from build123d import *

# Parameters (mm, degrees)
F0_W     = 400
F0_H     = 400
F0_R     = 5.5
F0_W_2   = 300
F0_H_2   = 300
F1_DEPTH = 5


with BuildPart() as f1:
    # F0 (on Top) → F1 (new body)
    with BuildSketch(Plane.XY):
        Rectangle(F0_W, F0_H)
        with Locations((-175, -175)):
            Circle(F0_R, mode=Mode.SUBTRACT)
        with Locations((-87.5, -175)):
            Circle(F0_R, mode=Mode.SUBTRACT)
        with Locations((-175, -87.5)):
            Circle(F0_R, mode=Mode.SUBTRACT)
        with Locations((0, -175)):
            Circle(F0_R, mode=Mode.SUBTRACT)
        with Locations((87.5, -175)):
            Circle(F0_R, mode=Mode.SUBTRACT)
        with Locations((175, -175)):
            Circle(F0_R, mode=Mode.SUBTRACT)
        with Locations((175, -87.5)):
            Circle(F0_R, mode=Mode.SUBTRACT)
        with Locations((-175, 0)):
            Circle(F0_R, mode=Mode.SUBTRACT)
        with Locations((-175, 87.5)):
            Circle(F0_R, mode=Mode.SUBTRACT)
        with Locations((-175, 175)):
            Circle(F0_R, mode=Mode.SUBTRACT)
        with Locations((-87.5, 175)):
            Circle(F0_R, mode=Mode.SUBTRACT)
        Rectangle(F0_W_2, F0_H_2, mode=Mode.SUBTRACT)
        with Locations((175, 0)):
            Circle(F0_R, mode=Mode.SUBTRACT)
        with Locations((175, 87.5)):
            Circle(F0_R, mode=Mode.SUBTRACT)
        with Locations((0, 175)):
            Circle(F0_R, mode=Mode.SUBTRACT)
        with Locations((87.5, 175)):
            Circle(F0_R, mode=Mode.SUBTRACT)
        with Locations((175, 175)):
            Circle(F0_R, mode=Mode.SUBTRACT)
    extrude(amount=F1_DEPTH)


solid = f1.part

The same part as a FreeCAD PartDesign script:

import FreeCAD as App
import Part
import Sketcher
from FreeCAD import Vector
Q = App.Units.Quantity

doc = App.newDocument("Part")
body = doc.addObject("PartDesign::Body", "Body")

# Sketch on XY plane
sketch1 = body.newObject("Sketcher::SketchObject", "Sketch")
sketch1.AttachmentSupport = (doc.getObject("XY_Plane"), [""])
sketch1.MapMode = "FlatFace"
sketch1.addGeometry(Part.LineSegment(Vector(-200, 200, 0), Vector(-200, -200, 0)), False)
sketch1.addGeometry(Part.LineSegment(Vector(-200, -200, 0), Vector(200, -200, 0)), False)
sketch1.addGeometry(Part.LineSegment(Vector(200, -200, 0), Vector(200, 200, 0)), False)
sketch1.addGeometry(Part.LineSegment(Vector(200, 200, 0), Vector(-200, 200, 0)), False)
sketch1.addGeometry(Part.Circle(Vector(-175, -175, 0), Vector(0, 0, 1), 5.5), False)
sketch1.addGeometry(Part.Circle(Vector(-87.5, -175, 0), Vector(0, 0, 1), 5.5), False)
sketch1.addGeometry(Part.Circle(Vector(-175, -87.5, 0), Vector(0, 0, 1), 5.5), False)
sketch1.addGeometry(Part.Circle(Vector(0, -175, 0), Vector(0, 0, 1), 5.5), False)
sketch1.addGeometry(Part.Circle(Vector(87.5, -175, 0), Vector(0, 0, 1), 5.5), False)
sketch1.addGeometry(Part.Circle(Vector(175, -175, 0), Vector(0, 0, 1), 5.5), False)
sketch1.addGeometry(Part.Circle(Vector(175, -87.5, 0), Vector(0, 0, 1), 5.5), False)
sketch1.addGeometry(Part.Circle(Vector(-175, 0, 0), Vector(0, 0, 1), 5.5), False)
sketch1.addGeometry(Part.Circle(Vector(-175, 87.5, 0), Vector(0, 0, 1), 5.5), False)
sketch1.addGeometry(Part.Circle(Vector(-175, 175, 0), Vector(0, 0, 1), 5.5), False)
sketch1.addGeometry(Part.Circle(Vector(-87.5, 175, 0), Vector(0, 0, 1), 5.5), False)
sketch1.addGeometry(Part.LineSegment(Vector(150, -150, 0), Vector(-150, -150, 0)), False)
sketch1.addGeometry(Part.LineSegment(Vector(-150, -150, 0), Vector(-150, 150, 0)), False)
sketch1.addGeometry(Part.LineSegment(Vector(-150, 150, 0), Vector(150, 150, 0)), False)
sketch1.addGeometry(Part.LineSegment(Vector(150, 150, 0), Vector(150, -150, 0)), False)
sketch1.addGeometry(Part.Circle(Vector(175, 0, 0), Vector(0, 0, 1), 5.5), False)
sketch1.addGeometry(Part.Circle(Vector(175, 87.5, 0), Vector(0, 0, 1), 5.5), False)
sketch1.addGeometry(Part.Circle(Vector(0, 175, 0), Vector(0, 0, 1), 5.5), False)
sketch1.addGeometry(Part.Circle(Vector(87.5, 175, 0), Vector(0, 0, 1), 5.5), False)
sketch1.addGeometry(Part.Circle(Vector(175, 175, 0), Vector(0, 0, 1), 5.5), False)
sketch1.addConstraint(Sketcher.Constraint("Coincident", 0, 2, 1, 1))
sketch1.addConstraint(Sketcher.Constraint("Coincident", 1, 2, 2, 1))
sketch1.addConstraint(Sketcher.Constraint("Coincident", 2, 2, 3, 1))
sketch1.addConstraint(Sketcher.Constraint("Coincident", 3, 2, 0, 1))
sketch1.addConstraint(Sketcher.Constraint("Coincident", 15, 2, 16, 1))
sketch1.addConstraint(Sketcher.Constraint("Coincident", 16, 2, 17, 1))
sketch1.addConstraint(Sketcher.Constraint("Coincident", 17, 2, 18, 1))
sketch1.addConstraint(Sketcher.Constraint("Coincident", 18, 2, 15, 1))
sketch1.addConstraint(Sketcher.Constraint("Vertical", 0))
sketch1.addConstraint(Sketcher.Constraint("Horizontal", 1))
sketch1.addConstraint(Sketcher.Constraint("Vertical", 2))
sketch1.addConstraint(Sketcher.Constraint("Horizontal", 3))
sketch1.addConstraint(Sketcher.Constraint("Horizontal", 15))
sketch1.addConstraint(Sketcher.Constraint("Vertical", 16))
sketch1.addConstraint(Sketcher.Constraint("Horizontal", 17))
sketch1.addConstraint(Sketcher.Constraint("Vertical", 18))
sketch1.addConstraint(Sketcher.Constraint("Equal", 4, 5))
sketch1.addConstraint(Sketcher.Constraint("Equal", 5, 6))
sketch1.addConstraint(Sketcher.Constraint("Equal", 6, 7))
sketch1.addConstraint(Sketcher.Constraint("Equal", 7, 8))
sketch1.addConstraint(Sketcher.Constraint("Equal", 8, 9))
sketch1.addConstraint(Sketcher.Constraint("Equal", 9, 10))
sketch1.addConstraint(Sketcher.Constraint("Equal", 10, 11))
sketch1.addConstraint(Sketcher.Constraint("Equal", 11, 12))
sketch1.addConstraint(Sketcher.Constraint("Equal", 12, 13))
sketch1.addConstraint(Sketcher.Constraint("Equal", 13, 14))
sketch1.addConstraint(Sketcher.Constraint("Equal", 14, 19))
sketch1.addConstraint(Sketcher.Constraint("Equal", 19, 20))
sketch1.addConstraint(Sketcher.Constraint("Equal", 20, 21))
sketch1.addConstraint(Sketcher.Constraint("Equal", 21, 22))
sketch1.addConstraint(Sketcher.Constraint("Equal", 22, 23))
sketch1.addConstraint(Sketcher.Constraint("Symmetric", 10, 3, 12, 3, -1, 1))
sketch1.addConstraint(Sketcher.Constraint("Symmetric", 9, 3, 13, 3, -1, 1))
sketch1.addConstraint(Sketcher.Constraint("Symmetric", 8, 3, 14, 3, -1, 1))
sketch1.addConstraint(Sketcher.Constraint("Symmetric", 11, 3, 19, 3, -1, 1))
sketch1.addConstraint(Sketcher.Constraint("Symmetric", 6, 3, 20, 3, -1, 1))
sketch1.addConstraint(Sketcher.Constraint("Symmetric", 7, 3, 21, 3, -1, 1))
sketch1.addConstraint(Sketcher.Constraint("Symmetric", 5, 3, 22, 3, -1, 1))
sketch1.addConstraint(Sketcher.Constraint("Symmetric", 4, 3, 23, 3, -1, 1))
sketch1.addConstraint(Sketcher.Constraint("Symmetric", 0, 2, 2, 2, -1, 1))
sketch1.addConstraint(Sketcher.Constraint("Symmetric", 15, 2, 17, 2, -1, 1))
sketch1.addConstraint(Sketcher.Constraint("Symmetric", 5, 3, 8, 3, -2))
sketch1.addConstraint(Sketcher.Constraint("Symmetric", 4, 3, 9, 3, -2))
sketch1.addConstraint(Sketcher.Constraint("Symmetric", 6, 3, 10, 3, -2))
sketch1.addConstraint(Sketcher.Constraint("PointOnObject", 7, 3, -2))
sketch1.addConstraint(Sketcher.Constraint("PointOnObject", 11, 3, -1))
sketch1.addConstraint(Sketcher.Constraint("Horizontal", 4, 3, 5, 3))
sketch1.addConstraint(Sketcher.Constraint("Horizontal", 5, 3, 7, 3))
sketch1.addConstraint(Sketcher.Constraint("Vertical", 4, 3, 6, 3))
sketch1.addConstraint(Sketcher.Constraint("Vertical", 6, 3, 11, 3))
sketch1.addConstraint(Sketcher.Constraint("Equal", 3, 0))
sketch1.addConstraint(Sketcher.Constraint("Equal", 17, 16))
sketch1.addConstraint(Sketcher.Constraint("Diameter", 4, Q("11 mm")))
sketch1.addConstraint(Sketcher.Constraint("DistanceX", 1, 1, 1, 2, Q("400 mm")))
sketch1.addConstraint(Sketcher.Constraint("DistanceX", 15, 2, 15, 1, Q("300 mm")))
sketch1.addConstraint(Sketcher.Constraint("DistanceX", 4, 3, -1, 1, Q("175 mm")))
sketch1.addConstraint(Sketcher.Constraint("DistanceY", 4, 3, -1, 1, Q("175 mm")))
sketch1.addConstraint(Sketcher.Constraint("DistanceX", 5, 3, 8, 3, Q("175 mm")))
sketch1.addConstraint(Sketcher.Constraint("DistanceY", 6, 3, 12, 3, Q("175 mm")))
pad1 = body.newObject("PartDesign::Pad", "Pad")
pad1.Profile = sketch1
pad1.Length = 5

doc.recompute()
